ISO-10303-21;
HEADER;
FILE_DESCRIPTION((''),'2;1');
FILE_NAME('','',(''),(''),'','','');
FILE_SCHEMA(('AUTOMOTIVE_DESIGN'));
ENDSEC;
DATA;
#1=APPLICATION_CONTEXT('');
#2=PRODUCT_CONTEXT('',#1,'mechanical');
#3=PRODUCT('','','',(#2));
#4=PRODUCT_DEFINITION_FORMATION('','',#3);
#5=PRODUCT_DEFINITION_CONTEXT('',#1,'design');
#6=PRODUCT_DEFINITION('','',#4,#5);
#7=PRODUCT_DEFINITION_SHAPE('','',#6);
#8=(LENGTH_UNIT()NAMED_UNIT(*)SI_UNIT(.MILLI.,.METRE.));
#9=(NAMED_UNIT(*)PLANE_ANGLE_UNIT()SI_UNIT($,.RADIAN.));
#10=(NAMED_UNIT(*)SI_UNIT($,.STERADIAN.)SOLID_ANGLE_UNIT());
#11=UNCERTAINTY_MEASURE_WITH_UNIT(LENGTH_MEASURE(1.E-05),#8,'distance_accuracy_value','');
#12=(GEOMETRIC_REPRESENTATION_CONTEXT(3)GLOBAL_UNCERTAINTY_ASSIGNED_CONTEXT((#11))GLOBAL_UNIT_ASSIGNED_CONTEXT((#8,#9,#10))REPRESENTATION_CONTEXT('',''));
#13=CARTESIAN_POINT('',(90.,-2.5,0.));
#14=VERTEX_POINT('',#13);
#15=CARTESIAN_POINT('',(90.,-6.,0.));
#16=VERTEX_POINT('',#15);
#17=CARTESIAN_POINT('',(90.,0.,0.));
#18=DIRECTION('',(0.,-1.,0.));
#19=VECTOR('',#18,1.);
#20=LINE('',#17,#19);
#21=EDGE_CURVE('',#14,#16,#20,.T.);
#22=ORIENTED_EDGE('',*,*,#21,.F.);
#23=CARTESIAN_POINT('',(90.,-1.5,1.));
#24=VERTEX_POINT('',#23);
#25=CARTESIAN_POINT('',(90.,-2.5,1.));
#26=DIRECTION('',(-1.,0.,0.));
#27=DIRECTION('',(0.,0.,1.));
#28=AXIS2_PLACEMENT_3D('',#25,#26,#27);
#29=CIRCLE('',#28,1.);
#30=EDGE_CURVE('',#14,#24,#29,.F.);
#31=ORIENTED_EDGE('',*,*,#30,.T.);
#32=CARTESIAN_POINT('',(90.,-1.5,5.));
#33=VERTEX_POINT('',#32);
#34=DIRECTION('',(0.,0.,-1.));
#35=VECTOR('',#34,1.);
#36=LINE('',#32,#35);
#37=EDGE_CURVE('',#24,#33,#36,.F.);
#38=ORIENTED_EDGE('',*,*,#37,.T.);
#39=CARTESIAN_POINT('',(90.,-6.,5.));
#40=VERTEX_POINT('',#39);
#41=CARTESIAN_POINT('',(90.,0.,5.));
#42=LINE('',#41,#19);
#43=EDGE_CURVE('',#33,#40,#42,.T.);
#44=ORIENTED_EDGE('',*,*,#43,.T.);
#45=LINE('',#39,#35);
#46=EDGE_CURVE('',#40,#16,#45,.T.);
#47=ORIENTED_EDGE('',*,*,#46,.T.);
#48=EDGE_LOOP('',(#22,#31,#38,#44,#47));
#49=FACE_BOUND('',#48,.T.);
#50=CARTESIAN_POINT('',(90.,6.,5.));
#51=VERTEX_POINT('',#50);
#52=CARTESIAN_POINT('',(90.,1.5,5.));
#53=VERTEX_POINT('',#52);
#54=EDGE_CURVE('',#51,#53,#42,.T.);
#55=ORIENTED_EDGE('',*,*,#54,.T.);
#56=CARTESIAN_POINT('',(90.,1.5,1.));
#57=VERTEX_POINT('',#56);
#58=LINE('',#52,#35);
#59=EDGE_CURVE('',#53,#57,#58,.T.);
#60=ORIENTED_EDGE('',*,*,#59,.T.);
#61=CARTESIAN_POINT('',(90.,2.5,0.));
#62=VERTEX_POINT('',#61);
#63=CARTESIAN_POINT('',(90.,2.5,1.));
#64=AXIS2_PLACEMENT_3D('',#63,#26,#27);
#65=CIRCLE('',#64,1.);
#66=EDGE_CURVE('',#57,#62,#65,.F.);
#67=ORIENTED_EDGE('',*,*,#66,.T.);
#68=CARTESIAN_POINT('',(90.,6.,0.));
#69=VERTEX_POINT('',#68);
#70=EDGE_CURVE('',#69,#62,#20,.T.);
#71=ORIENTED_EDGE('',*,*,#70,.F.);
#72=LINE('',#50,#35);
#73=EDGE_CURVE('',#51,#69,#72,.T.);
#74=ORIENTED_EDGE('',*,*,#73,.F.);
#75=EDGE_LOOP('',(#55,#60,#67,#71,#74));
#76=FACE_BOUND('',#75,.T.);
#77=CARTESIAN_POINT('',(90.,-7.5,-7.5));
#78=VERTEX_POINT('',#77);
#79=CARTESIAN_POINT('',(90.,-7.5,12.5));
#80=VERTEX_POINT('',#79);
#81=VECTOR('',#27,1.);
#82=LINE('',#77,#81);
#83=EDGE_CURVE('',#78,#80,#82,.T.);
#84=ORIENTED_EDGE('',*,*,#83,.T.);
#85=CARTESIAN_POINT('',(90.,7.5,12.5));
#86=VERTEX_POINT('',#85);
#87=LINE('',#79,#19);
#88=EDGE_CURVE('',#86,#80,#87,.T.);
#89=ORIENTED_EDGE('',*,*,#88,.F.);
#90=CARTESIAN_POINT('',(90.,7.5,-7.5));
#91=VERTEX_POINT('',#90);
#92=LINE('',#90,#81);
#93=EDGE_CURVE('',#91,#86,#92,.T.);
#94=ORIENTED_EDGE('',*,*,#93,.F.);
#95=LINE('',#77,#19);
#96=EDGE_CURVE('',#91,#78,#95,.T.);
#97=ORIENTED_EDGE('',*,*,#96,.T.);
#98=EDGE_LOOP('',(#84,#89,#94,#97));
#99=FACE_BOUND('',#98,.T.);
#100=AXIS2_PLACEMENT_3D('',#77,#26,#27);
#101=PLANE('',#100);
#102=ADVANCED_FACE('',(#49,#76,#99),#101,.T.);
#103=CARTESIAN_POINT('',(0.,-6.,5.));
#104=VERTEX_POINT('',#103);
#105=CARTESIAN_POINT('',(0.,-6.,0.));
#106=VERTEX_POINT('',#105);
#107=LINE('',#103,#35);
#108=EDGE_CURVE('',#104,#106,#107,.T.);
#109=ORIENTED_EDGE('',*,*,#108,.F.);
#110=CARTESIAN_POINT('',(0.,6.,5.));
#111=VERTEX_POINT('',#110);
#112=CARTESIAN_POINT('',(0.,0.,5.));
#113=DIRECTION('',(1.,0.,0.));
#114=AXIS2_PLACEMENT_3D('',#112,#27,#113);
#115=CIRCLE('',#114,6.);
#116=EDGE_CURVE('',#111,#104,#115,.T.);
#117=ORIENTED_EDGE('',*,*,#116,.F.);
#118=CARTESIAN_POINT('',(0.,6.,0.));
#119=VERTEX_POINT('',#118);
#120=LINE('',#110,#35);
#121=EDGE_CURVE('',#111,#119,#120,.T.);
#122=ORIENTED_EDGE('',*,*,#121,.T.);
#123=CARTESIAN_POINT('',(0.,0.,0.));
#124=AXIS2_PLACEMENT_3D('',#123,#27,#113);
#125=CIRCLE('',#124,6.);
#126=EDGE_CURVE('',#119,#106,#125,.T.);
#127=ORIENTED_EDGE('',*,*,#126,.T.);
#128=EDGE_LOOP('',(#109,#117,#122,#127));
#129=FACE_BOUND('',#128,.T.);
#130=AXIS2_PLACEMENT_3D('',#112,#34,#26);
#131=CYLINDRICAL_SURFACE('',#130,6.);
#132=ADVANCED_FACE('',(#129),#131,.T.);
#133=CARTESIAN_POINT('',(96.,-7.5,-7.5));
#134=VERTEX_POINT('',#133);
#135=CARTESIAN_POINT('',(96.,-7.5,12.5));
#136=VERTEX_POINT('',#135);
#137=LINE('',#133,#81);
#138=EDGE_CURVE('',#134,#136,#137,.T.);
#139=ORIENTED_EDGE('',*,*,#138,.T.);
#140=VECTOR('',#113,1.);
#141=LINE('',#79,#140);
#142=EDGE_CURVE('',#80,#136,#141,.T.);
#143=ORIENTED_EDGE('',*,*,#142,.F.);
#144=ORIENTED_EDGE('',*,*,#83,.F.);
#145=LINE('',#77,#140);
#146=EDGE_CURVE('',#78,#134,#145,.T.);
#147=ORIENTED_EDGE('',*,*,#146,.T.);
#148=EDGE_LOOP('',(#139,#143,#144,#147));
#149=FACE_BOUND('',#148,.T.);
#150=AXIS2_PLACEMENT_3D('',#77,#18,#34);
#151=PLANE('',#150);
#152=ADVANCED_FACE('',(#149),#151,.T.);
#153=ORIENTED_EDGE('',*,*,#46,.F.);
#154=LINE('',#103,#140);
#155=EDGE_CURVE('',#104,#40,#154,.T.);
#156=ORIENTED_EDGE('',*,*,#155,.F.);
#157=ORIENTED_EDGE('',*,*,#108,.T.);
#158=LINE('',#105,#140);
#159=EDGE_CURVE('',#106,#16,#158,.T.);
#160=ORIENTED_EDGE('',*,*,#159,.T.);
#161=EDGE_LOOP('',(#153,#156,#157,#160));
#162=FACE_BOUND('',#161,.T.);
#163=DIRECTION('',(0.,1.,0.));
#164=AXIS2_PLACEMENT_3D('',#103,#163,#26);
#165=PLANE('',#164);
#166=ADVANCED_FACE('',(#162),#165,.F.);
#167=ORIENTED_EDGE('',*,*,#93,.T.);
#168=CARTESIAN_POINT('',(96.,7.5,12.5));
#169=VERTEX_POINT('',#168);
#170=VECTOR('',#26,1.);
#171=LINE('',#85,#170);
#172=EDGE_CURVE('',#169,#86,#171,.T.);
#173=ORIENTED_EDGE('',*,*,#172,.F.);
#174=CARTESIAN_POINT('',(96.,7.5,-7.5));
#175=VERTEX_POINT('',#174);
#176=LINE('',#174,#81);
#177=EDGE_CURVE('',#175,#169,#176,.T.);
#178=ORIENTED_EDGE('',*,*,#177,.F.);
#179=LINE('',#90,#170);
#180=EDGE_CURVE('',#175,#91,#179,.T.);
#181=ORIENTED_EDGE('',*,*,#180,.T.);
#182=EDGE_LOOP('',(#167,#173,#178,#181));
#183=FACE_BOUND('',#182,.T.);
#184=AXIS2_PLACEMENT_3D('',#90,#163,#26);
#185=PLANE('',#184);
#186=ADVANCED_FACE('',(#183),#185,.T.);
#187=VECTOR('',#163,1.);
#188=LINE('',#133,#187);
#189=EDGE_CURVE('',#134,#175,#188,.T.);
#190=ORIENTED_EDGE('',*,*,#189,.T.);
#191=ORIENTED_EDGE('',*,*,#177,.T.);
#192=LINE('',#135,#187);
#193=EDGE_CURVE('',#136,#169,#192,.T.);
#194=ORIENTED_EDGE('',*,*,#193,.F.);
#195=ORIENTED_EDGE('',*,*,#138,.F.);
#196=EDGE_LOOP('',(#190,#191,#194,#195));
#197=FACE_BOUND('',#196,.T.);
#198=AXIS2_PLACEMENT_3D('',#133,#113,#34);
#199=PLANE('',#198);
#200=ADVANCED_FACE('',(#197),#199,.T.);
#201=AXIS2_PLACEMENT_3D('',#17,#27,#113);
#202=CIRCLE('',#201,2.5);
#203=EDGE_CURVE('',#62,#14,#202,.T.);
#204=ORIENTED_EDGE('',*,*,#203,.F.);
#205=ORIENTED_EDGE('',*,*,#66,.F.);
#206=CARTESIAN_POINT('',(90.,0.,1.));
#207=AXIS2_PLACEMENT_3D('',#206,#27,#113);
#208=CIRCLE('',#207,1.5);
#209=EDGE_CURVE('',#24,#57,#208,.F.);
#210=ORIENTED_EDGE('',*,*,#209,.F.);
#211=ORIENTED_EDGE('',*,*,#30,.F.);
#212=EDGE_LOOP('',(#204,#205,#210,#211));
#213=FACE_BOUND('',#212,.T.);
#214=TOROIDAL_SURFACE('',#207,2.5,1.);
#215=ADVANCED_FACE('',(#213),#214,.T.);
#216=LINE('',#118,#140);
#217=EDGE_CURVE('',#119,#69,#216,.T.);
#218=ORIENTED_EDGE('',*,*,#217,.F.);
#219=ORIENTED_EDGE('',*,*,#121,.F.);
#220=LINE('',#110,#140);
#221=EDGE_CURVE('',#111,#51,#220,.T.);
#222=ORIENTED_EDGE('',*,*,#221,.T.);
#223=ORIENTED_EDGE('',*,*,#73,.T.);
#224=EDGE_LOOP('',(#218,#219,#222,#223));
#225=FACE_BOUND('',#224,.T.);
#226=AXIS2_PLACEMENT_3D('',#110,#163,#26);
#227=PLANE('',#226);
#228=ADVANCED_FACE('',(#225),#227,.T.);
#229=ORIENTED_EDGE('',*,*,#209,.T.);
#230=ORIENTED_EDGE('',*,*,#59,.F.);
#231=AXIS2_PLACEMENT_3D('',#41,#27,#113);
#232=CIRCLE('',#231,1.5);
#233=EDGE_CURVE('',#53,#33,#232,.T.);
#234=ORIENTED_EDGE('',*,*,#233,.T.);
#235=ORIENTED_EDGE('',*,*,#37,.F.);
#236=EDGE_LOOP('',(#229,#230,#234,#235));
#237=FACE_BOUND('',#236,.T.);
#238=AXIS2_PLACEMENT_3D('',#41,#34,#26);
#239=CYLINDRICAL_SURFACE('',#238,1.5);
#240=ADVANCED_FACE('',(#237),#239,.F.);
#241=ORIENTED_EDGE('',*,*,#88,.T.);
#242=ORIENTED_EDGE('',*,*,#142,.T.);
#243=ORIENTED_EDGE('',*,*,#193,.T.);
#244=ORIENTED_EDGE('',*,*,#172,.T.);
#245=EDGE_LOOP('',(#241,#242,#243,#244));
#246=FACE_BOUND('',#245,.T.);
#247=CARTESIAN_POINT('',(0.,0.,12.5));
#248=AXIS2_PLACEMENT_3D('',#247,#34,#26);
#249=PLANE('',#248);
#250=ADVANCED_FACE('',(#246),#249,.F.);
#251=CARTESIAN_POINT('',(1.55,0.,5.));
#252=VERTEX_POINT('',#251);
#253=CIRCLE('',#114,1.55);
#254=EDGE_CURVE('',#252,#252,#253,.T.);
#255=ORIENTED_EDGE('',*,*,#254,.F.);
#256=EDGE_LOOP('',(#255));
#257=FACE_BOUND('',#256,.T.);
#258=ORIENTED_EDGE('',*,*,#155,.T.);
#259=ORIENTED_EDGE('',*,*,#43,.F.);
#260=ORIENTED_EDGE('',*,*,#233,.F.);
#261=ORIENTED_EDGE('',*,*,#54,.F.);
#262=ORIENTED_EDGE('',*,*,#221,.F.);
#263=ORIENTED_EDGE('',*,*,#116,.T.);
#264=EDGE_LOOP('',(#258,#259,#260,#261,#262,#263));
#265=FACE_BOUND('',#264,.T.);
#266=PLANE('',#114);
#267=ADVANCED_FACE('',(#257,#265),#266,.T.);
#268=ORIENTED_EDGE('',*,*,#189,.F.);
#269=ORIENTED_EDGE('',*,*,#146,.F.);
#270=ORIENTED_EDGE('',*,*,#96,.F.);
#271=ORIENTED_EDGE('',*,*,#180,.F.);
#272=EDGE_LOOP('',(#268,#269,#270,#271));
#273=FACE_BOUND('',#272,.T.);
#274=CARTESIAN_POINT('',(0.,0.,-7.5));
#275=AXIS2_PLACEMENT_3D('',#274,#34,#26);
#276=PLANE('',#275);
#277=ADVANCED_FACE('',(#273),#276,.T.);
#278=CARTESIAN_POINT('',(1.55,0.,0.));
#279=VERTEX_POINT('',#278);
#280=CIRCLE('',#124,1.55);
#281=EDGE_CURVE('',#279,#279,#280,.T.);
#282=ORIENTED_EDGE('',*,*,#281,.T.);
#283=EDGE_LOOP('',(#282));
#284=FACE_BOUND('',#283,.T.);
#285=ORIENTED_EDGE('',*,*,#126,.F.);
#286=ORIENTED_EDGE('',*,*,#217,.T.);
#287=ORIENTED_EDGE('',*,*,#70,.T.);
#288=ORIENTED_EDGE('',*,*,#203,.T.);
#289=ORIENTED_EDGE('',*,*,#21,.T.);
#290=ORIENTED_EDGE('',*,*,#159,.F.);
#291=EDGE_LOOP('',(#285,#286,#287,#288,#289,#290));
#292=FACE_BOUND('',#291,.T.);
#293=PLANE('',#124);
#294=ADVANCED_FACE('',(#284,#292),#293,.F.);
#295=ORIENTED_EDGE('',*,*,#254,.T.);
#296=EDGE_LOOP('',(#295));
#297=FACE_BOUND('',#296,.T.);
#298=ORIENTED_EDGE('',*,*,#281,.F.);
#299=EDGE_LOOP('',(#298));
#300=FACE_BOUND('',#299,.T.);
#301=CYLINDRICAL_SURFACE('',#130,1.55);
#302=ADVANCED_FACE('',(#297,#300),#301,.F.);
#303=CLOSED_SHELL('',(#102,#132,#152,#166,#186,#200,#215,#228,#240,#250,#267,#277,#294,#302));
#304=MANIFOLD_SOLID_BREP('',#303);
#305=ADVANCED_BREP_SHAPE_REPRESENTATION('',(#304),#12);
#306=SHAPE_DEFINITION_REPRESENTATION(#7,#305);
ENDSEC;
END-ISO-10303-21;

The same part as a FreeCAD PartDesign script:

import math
import FreeCAD as App
import Part
import Sketcher
from FreeCAD import Vector


def edges_at(feature, points):
    """Names of the edges that pass closest to the given points."""
    edges = feature.Shape.Edges
    near = lambda p: min(range(len(edges)), key=lambda i: edges[i].distToShape(Part.Vertex(*p))[0])
    return sorted({f"Edge{near(p) + 1}" for p in points})


def add_polygon(sketch, points):
    """Adds a closed chain of lines whose ends are joined by coincident constraints."""
    first, n = sketch.GeometryCount, len(points)
    for a, b in zip(points, points[1:] + points[:1]):
        sketch.addGeometry(Part.LineSegment(App.Vector(*a, 0), App.Vector(*b, 0)), False)
    for i in range(n):
        sketch.addConstraint(Sketcher.Constraint("Coincident", first + i, 2, first + (i + 1) % n, 1))

doc = App.newDocument("Part")
body = doc.addObject("PartDesign::Body", "Body")

# Sketch on XY plane
sketch1 = body.newObject("Sketcher::SketchObject", "Sketch")
sketch1.AttachmentSupport = (doc.getObject("XY_Plane"), [""])
sketch1.MapMode = "FlatFace"
sketch1.addGeometry([
    Part.ArcOfCircle(Part.Circle(Vector(0, 0, 0), Vector(0, 0, 1), 6), math.radians(90), math.radians(270)),  # 0
    Part.LineSegment(Vector(0, -6, 0), Vector(90, -6, 0)),  # 1
    Part.ArcOfCircle(Part.Circle(Vector(90, 0, 0), Vector(0, 0, 1), 6), math.radians(-90), math.radians(90)),  # 2
    Part.LineSegment(Vector(90, 6, 0), Vector(0, 6, 0)),  # 3
    Part.Circle(Vector(0, 0, 0), Vector(0, 0, 1), 1.6),  # 4
    Part.Circle(Vector(90, 0, 0), Vector(0, 0, 1), 1.5),  # 5
], False)
sketch1.addConstraint([
    Sketcher.Constraint("Tangent", 0, 2, 1, 1),
    Sketcher.Constraint("Tangent", 1, 2, 2, 1),
    Sketcher.Constraint("Tangent", 2, 2, 3, 1),
    Sketcher.Constraint("Tangent", 3, 2, 0, 1),
    Sketcher.Constraint("Horizontal", 1),
    Sketcher.Constraint("Horizontal", 3),
    Sketcher.Constraint("Coincident", 0, 3, -1, 1),
    Sketcher.Constraint("Coincident", 4, 3, -1, 1),
    Sketcher.Constraint("Coincident", 5, 3, 2, 3),
    Sketcher.Constraint("Diameter", 5, 3.0),
    Sketcher.Constraint("Radius", 0, 6.0),
    Sketcher.Constraint("Diameter", 4, 3.1),
    Sketcher.Constraint("DistanceX", 1, 1, 1, 2, 90.0),
])
pad1 = body.newObject("PartDesign::Pad", "Pad")
pad1.Profile = sketch1
pad1.Length = 5
doc.recompute()

fillet = body.newObject("PartDesign::Fillet", "Fillet")
fillet.Base = (pad1, edges_at(pad1, [(88.5, 0, 0)]))
fillet.Radius = 1

# Sketch on XY plane
sketch2 = body.newObject("Sketcher::SketchObject", "Sketch001")
sketch2.AttachmentSupport = (doc.getObject("XY_Plane"), [""])
sketch2.MapMode = "FlatFace"
sketch2.AttachmentOffset = App.Placement(Vector(0, 0, 12.5), App.Rotation())
add_polygon(sketch2, [(90, 8), (90, -8), (96, -8), (96, 8)])  # lines 0-3
sketch2.addConstraint([
    Sketcher.Constraint("Vertical", 0),
    Sketcher.Constraint("Horizontal", 1),
    Sketcher.Constraint("Vertical", 2),
    Sketcher.Constraint("Horizontal", 3),
    Sketcher.Constraint("DistanceX", 1, 1, 1, 2, 6.0),
    Sketcher.Constraint("DistanceY", 0, 2, 0, 1, 15.0),
    Sketcher.Constraint("DistanceX", -1, 1, 0, 2, 90.0),
    Sketcher.Constraint("DistanceY", 0, 2, -1, 1, 7.5),
])
pad2 = body.newObject("PartDesign::Pad", "Pad001")
pad2.Profile = sketch2
pad2.Length = 20
pad2.Reversed = True

doc.recompute()
